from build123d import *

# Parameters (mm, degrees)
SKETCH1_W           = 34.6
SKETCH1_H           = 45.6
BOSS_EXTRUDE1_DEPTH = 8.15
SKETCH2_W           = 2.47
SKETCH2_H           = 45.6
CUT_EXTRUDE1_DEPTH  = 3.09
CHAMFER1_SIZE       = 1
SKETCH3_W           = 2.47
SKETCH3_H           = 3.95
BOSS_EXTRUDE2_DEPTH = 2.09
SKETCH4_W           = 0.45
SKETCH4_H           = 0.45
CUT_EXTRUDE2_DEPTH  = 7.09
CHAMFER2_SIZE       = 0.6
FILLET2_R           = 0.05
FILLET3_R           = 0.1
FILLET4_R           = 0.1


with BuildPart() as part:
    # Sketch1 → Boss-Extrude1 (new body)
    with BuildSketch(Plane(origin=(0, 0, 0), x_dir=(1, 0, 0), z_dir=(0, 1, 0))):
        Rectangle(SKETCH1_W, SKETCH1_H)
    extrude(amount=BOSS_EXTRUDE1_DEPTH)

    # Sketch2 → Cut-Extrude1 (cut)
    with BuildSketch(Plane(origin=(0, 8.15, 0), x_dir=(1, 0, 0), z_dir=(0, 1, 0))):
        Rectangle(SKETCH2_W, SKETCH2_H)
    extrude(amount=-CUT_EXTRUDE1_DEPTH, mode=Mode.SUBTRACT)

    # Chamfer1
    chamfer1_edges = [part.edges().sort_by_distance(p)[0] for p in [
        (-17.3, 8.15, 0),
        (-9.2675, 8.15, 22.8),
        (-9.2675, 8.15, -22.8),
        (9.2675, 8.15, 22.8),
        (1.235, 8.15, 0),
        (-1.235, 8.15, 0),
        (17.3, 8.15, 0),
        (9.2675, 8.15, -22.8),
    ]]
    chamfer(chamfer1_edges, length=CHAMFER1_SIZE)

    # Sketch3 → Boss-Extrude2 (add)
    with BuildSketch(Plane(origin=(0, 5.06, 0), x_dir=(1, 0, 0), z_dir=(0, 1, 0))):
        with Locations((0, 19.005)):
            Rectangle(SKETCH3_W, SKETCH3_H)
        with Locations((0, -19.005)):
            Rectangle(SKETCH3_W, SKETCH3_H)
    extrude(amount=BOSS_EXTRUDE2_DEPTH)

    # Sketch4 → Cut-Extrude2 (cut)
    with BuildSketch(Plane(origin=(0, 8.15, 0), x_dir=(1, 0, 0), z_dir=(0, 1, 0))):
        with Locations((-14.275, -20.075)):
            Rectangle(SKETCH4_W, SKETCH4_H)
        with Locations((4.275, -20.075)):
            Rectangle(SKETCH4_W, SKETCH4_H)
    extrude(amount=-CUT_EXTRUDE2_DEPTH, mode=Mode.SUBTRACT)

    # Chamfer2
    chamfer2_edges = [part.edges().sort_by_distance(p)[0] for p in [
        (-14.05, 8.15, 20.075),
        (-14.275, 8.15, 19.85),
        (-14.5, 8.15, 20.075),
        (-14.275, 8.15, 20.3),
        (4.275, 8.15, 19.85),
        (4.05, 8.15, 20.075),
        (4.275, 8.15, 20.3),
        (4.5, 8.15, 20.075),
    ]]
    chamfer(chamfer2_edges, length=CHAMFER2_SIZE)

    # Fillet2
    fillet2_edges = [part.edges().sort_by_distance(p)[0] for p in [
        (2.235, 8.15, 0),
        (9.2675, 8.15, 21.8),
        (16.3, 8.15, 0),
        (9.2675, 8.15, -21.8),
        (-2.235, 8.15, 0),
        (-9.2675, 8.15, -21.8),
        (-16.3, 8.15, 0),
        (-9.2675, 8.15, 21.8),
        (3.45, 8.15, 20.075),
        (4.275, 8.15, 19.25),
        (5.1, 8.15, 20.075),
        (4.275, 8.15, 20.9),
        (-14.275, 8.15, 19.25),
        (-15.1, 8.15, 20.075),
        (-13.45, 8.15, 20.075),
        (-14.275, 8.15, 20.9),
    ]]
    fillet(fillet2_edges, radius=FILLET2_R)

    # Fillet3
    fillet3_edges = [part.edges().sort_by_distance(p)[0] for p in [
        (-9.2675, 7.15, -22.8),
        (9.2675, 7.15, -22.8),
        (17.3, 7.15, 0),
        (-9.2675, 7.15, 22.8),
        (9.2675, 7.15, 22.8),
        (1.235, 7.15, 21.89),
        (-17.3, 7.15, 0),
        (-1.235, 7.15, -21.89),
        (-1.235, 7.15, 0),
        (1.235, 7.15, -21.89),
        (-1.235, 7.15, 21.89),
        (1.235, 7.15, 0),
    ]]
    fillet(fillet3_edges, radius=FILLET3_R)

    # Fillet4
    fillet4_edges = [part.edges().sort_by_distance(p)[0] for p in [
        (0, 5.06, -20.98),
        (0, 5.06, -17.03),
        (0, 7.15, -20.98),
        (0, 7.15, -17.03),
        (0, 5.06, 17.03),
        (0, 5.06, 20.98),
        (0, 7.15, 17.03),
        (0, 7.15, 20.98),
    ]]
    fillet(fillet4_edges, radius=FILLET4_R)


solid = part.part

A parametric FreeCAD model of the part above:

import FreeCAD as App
import Part
import Sketcher
from FreeCAD import Vector


def edges_at(feature, points):
    """Names of the edges that pass closest to the given points."""
    edges = feature.Shape.Edges
    near = lambda p: min(range(len(edges)), key=lambda i: edges[i].distToShape(Part.Vertex(*p))[0])
    return sorted({f"Edge{near(p) + 1}" for p in points})


def add_polygon(sketch, points):
    """Adds a closed chain of lines whose ends are joined by coincident constraints."""
    first, n = sketch.GeometryCount, len(points)
    for a, b in zip(points, points[1:] + points[:1]):
        sketch.addGeometry(Part.LineSegment(App.Vector(*a, 0), App.Vector(*b, 0)), False)
    for i in range(n):
        sketch.addConstraint(Sketcher.Constraint("Coincident", first + i, 2, first + (i + 1) % n, 1))

doc = App.newDocument("Part")
body = doc.addObject("PartDesign::Body", "Body")

sketch1 = body.newObject("Sketcher::SketchObject", "Sketch")
sketch1.AttachmentSupport = (doc.getObject("XZ_Plane"), [""])
sketch1.MapMode = "FlatFace"
add_polygon(sketch1, [(-17, -23), (-17, 23), (17, 23), (17, -23)])
sketch1.addConstraint(Sketcher.Constraint("Vertical", 0))
sketch1.addConstraint(Sketcher.Constraint("Horizontal", 1))
sketch1.addConstraint(Sketcher.Constraint("Vertical", 2))
sketch1.addConstraint(Sketcher.Constraint("Horizontal", 3))
sketch1.addConstraint(Sketcher.Constraint("Symmetric", 0, 2, 2, 2, -1, 1))
sketch1.addConstraint(Sketcher.Constraint("DistanceX", 1, 1, 1, 2, 34.6))
sketch1.addConstraint(Sketcher.Constraint("DistanceY", 0, 1, 0, 2, 45.6))
pad1 = body.newObject("PartDesign::Pad", "Pad")
pad1.Profile = sketch1
pad1.Length = 8.15
pad1.Reversed = True

sketch2 = body.newObject("Sketcher::SketchObject", "Sketch001")
sketch2.AttachmentSupport = (doc.getObject("XZ_Plane"), [""])
sketch2.MapMode = "FlatFace"
sketch2.AttachmentOffset = App.Placement(Vector(0, 0, -8.15), App.Rotation())
add_polygon(sketch2, [(-1.2, -22.8), (-1.2, 22.8), (1.2, 22.8), (1.2, -22.8)])
sketch2.addConstraint(Sketcher.Constraint("Vertical", 0))
sketch2.addConstraint(Sketcher.Constraint("Horizontal", 1))
sketch2.addConstraint(Sketcher.Constraint("Vertical", 2))
sketch2.addConstraint(Sketcher.Constraint("Horizontal", 3))
sketch2.addConstraint(Sketcher.Constraint("Symmetric", 0, 2, 2, 2, -1, 1))
sketch2.addConstraint(Sketcher.Constraint("DistanceY", 0, 1, 0, 2, 45.6))
sketch2.addConstraint(Sketcher.Constraint("DistanceX", 1, 1, 1, 2, 2.47))
pocket1 = body.newObject("PartDesign::Pocket", "Pocket")
pocket1.Profile = sketch2
pocket1.Length = 3.09
pocket1.Reversed = True
doc.recompute()

chamfer = body.newObject("PartDesign::Chamfer", "Chamfer")
chamfer.Base = (pocket1, edges_at(pocket1, [
    (-17.3, 8.15, 0),
    (-9.268, 8.15, 22.8),
    (-9.268, 8.15, -22.8),
    (9.268, 8.15, 22.8),
    (1.235, 8.15, 0),
    (-1.235, 8.15, 0),
    (17.3, 8.15, 0),
    (9.268, 8.15, -22.8),
]))
chamfer.Size = 1

sketch3 = body.newObject("Sketcher::SketchObject", "Sketch002")
sketch3.AttachmentSupport = (doc.getObject("XZ_Plane"), [""])
sketch3.MapMode = "FlatFace"
sketch3.AttachmentOffset = App.Placement(Vector(0, 0, -5.06), App.Rotation())
add_polygon(sketch3, [(-1.2, -21), (-1.2, -17), (1.2, -17), (1.2, -21)])
add_polygon(sketch3, [(-1.2, 17), (-1.2, 21), (1.2, 21), (1.2, 17)])
sketch3.addConstraint(Sketcher.Constraint("Vertical", 0))
sketch3.addConstraint(Sketcher.Constraint("Horizontal", 1))
sketch3.addConstraint(Sketcher.Constraint("Vertical", 2))
sketch3.addConstraint(Sketcher.Constraint("Horizontal", 3))
sketch3.addConstraint(Sketcher.Constraint("Vertical", 4))
sketch3.addConstraint(Sketcher.Constraint("Horizontal", 5))
sketch3.addConstraint(Sketcher.Constraint("Vertical", 6))
sketch3.addConstraint(Sketcher.Constraint("Horizontal", 7))
sketch3.addConstraint(Sketcher.Constraint("Symmetric", 2, 2, 4, 2, -1, 1))
sketch3.addConstraint(Sketcher.Constraint("Symmetric", 0, 2, 6, 2, -1, 1))
sketch3.addConstraint(Sketcher.Constraint("Vertical", 3, 2, 4, 2))
sketch3.addConstraint(Sketcher.Constraint("DistanceX", 1, 1, 1, 2, 2.47))
sketch3.addConstraint(Sketcher.Constraint("DistanceY", 0, 1, 0, 2, 3.95))
sketch3.addConstraint(Sketcher.Constraint("DistanceY", 0, 2, -1, 1, 17.03))
pad2 = body.newObject("PartDesign::Pad", "Pad001")
pad2.Profile = sketch3
pad2.Length = 2.09
pad2.Reversed = True

sketch4 = body.newObject("Sketcher::SketchObject", "Sketch003")
sketch4.AttachmentSupport = (doc.getObject("XZ_Plane"), [""])
sketch4.MapMode = "FlatFace"
sketch4.AttachmentOffset = App.Placement(Vector(0, 0, -8.15), App.Rotation())
add_polygon(sketch4, [(-14.5, 19.85), (-14.5, 20.3), (-14.05, 20.3), (-14.05, 19.85)])
add_polygon(sketch4, [(4.05, 19.85), (4.05, 20.3), (4.5, 20.3), (4.5, 19.85)])
sketch4.addConstraint(Sketcher.Constraint("Vertical", 0))
sketch4.addConstraint(Sketcher.Constraint("Horizontal", 1))
sketch4.addConstraint(Sketcher.Constraint("Vertical", 2))
sketch4.addConstraint(Sketcher.Constraint("Horizontal", 3))
sketch4.addConstraint(Sketcher.Constraint("Vertical", 4))
sketch4.addConstraint(Sketcher.Constraint("Horizontal", 5))
sketch4.addConstraint(Sketcher.Constraint("Vertical", 6))
sketch4.addConstraint(Sketcher.Constraint("Horizontal", 7))
sketch4.addConstraint(Sketcher.Constraint("Horizontal", 1, 2, 4, 2))
sketch4.addConstraint(Sketcher.Constraint("Horizontal", 3, 2, 6, 2))
sketch4.addConstraint(Sketcher.Constraint("Equal", 3, 5))
sketch4.addConstraint(Sketcher.Constraint("Equal", 7, 0))
sketch4.addConstraint(Sketcher.Constraint("DistanceX", 0, 2, 5, 2, 19.0))
sketch4.addConstraint(Sketcher.Constraint("DistanceX", 1, 1, 1, 2, 0.45))
sketch4.addConstraint(Sketcher.Constraint("DistanceX", 0, 2, -1, 1, 14.5))
sketch4.addConstraint(Sketcher.Constraint("DistanceY", -1, 1, 0, 2, 20.3))
pocket2 = body.newObject("PartDesign::Pocket", "Pocket001")
pocket2.Profile = sketch4
pocket2.Length = 7.09
pocket2.Reversed = True
doc.recompute()

chamfer2 = body.newObject("PartDesign::Chamfer", "Chamfer001")
chamfer2.Base = (pocket2, edges_at(pocket2, [
    (-14.05, 8.15, 20.075),
    (-14.275, 8.15, 19.85),
    (-14.5, 8.15, 20.075),
    (-14.275, 8.15, 20.3),
    (4.275, 8.15, 19.85),
    (4.05, 8.15, 20.075),
    (4.275, 8.15, 20.3),
    (4.5, 8.15, 20.075),
]))
chamfer2.Size = 0.6
doc.recompute()

fillet = body.newObject("PartDesign::Fillet", "Fillet")
fillet.Base = (chamfer2, edges_at(chamfer2, [
    (2.235, 8.15, 0),
    (9.268, 8.15, 21.8),
    (16.3, 8.15, 0),
    (9.268, 8.15, -21.8),
    (-2.235, 8.15, 0),
    (-9.268, 8.15, -21.8),
    (-16.3, 8.15, 0),
    (-9.268, 8.15, 21.8),
    (3.45, 8.15, 20.075),
    (4.275, 8.15, 19.25),
    (5.1, 8.15, 20.075),
    (4.275, 8.15, 20.9),
    (-14.275, 8.15, 19.25),
    (-15.1, 8.15, 20.075),
    (-13.45, 8.15, 20.075),
    (-14.275, 8.15, 20.9),
]))
fillet.Radius = 0.05
doc.recompute()

fillet2 = body.newObject("PartDesign::Fillet", "Fillet001")
fillet2.Base = (fillet, edges_at(fillet, [
    (-9.268, 7.15, -22.8),
    (9.268, 7.15, -22.8),
    (17.3, 7.15, 0),
    (-9.268, 7.15, 22.8),
    (9.268, 7.15, 22.8),
    (1.235, 7.15, 21.89),
    (-17.3, 7.15, 0),
    (-1.235, 7.15, -21.89),
    (-1.235, 7.15, 0),
    (1.235, 7.15, -21.89),
    (-1.235, 7.15, 21.89),
    (1.235, 7.15, 0),
]))
fillet2.Radius = 0.1
doc.recompute()

fillet3 = body.newObject("PartDesign::Fillet", "Fillet002")
fillet3.Base = (fillet2, edges_at(fillet2, [
    (0, 5.06, -20.98),
    (0, 5.06, -17.03),
    (0, 7.15, -20.98),
    (0, 7.15, -17.03),
    (0, 5.06, 17.03),
    (0, 5.06, 20.98),
    (0, 7.15, 17.03),
    (0, 7.15, 20.98),
]))
fillet3.Radius = 0.1

doc.recompute()
